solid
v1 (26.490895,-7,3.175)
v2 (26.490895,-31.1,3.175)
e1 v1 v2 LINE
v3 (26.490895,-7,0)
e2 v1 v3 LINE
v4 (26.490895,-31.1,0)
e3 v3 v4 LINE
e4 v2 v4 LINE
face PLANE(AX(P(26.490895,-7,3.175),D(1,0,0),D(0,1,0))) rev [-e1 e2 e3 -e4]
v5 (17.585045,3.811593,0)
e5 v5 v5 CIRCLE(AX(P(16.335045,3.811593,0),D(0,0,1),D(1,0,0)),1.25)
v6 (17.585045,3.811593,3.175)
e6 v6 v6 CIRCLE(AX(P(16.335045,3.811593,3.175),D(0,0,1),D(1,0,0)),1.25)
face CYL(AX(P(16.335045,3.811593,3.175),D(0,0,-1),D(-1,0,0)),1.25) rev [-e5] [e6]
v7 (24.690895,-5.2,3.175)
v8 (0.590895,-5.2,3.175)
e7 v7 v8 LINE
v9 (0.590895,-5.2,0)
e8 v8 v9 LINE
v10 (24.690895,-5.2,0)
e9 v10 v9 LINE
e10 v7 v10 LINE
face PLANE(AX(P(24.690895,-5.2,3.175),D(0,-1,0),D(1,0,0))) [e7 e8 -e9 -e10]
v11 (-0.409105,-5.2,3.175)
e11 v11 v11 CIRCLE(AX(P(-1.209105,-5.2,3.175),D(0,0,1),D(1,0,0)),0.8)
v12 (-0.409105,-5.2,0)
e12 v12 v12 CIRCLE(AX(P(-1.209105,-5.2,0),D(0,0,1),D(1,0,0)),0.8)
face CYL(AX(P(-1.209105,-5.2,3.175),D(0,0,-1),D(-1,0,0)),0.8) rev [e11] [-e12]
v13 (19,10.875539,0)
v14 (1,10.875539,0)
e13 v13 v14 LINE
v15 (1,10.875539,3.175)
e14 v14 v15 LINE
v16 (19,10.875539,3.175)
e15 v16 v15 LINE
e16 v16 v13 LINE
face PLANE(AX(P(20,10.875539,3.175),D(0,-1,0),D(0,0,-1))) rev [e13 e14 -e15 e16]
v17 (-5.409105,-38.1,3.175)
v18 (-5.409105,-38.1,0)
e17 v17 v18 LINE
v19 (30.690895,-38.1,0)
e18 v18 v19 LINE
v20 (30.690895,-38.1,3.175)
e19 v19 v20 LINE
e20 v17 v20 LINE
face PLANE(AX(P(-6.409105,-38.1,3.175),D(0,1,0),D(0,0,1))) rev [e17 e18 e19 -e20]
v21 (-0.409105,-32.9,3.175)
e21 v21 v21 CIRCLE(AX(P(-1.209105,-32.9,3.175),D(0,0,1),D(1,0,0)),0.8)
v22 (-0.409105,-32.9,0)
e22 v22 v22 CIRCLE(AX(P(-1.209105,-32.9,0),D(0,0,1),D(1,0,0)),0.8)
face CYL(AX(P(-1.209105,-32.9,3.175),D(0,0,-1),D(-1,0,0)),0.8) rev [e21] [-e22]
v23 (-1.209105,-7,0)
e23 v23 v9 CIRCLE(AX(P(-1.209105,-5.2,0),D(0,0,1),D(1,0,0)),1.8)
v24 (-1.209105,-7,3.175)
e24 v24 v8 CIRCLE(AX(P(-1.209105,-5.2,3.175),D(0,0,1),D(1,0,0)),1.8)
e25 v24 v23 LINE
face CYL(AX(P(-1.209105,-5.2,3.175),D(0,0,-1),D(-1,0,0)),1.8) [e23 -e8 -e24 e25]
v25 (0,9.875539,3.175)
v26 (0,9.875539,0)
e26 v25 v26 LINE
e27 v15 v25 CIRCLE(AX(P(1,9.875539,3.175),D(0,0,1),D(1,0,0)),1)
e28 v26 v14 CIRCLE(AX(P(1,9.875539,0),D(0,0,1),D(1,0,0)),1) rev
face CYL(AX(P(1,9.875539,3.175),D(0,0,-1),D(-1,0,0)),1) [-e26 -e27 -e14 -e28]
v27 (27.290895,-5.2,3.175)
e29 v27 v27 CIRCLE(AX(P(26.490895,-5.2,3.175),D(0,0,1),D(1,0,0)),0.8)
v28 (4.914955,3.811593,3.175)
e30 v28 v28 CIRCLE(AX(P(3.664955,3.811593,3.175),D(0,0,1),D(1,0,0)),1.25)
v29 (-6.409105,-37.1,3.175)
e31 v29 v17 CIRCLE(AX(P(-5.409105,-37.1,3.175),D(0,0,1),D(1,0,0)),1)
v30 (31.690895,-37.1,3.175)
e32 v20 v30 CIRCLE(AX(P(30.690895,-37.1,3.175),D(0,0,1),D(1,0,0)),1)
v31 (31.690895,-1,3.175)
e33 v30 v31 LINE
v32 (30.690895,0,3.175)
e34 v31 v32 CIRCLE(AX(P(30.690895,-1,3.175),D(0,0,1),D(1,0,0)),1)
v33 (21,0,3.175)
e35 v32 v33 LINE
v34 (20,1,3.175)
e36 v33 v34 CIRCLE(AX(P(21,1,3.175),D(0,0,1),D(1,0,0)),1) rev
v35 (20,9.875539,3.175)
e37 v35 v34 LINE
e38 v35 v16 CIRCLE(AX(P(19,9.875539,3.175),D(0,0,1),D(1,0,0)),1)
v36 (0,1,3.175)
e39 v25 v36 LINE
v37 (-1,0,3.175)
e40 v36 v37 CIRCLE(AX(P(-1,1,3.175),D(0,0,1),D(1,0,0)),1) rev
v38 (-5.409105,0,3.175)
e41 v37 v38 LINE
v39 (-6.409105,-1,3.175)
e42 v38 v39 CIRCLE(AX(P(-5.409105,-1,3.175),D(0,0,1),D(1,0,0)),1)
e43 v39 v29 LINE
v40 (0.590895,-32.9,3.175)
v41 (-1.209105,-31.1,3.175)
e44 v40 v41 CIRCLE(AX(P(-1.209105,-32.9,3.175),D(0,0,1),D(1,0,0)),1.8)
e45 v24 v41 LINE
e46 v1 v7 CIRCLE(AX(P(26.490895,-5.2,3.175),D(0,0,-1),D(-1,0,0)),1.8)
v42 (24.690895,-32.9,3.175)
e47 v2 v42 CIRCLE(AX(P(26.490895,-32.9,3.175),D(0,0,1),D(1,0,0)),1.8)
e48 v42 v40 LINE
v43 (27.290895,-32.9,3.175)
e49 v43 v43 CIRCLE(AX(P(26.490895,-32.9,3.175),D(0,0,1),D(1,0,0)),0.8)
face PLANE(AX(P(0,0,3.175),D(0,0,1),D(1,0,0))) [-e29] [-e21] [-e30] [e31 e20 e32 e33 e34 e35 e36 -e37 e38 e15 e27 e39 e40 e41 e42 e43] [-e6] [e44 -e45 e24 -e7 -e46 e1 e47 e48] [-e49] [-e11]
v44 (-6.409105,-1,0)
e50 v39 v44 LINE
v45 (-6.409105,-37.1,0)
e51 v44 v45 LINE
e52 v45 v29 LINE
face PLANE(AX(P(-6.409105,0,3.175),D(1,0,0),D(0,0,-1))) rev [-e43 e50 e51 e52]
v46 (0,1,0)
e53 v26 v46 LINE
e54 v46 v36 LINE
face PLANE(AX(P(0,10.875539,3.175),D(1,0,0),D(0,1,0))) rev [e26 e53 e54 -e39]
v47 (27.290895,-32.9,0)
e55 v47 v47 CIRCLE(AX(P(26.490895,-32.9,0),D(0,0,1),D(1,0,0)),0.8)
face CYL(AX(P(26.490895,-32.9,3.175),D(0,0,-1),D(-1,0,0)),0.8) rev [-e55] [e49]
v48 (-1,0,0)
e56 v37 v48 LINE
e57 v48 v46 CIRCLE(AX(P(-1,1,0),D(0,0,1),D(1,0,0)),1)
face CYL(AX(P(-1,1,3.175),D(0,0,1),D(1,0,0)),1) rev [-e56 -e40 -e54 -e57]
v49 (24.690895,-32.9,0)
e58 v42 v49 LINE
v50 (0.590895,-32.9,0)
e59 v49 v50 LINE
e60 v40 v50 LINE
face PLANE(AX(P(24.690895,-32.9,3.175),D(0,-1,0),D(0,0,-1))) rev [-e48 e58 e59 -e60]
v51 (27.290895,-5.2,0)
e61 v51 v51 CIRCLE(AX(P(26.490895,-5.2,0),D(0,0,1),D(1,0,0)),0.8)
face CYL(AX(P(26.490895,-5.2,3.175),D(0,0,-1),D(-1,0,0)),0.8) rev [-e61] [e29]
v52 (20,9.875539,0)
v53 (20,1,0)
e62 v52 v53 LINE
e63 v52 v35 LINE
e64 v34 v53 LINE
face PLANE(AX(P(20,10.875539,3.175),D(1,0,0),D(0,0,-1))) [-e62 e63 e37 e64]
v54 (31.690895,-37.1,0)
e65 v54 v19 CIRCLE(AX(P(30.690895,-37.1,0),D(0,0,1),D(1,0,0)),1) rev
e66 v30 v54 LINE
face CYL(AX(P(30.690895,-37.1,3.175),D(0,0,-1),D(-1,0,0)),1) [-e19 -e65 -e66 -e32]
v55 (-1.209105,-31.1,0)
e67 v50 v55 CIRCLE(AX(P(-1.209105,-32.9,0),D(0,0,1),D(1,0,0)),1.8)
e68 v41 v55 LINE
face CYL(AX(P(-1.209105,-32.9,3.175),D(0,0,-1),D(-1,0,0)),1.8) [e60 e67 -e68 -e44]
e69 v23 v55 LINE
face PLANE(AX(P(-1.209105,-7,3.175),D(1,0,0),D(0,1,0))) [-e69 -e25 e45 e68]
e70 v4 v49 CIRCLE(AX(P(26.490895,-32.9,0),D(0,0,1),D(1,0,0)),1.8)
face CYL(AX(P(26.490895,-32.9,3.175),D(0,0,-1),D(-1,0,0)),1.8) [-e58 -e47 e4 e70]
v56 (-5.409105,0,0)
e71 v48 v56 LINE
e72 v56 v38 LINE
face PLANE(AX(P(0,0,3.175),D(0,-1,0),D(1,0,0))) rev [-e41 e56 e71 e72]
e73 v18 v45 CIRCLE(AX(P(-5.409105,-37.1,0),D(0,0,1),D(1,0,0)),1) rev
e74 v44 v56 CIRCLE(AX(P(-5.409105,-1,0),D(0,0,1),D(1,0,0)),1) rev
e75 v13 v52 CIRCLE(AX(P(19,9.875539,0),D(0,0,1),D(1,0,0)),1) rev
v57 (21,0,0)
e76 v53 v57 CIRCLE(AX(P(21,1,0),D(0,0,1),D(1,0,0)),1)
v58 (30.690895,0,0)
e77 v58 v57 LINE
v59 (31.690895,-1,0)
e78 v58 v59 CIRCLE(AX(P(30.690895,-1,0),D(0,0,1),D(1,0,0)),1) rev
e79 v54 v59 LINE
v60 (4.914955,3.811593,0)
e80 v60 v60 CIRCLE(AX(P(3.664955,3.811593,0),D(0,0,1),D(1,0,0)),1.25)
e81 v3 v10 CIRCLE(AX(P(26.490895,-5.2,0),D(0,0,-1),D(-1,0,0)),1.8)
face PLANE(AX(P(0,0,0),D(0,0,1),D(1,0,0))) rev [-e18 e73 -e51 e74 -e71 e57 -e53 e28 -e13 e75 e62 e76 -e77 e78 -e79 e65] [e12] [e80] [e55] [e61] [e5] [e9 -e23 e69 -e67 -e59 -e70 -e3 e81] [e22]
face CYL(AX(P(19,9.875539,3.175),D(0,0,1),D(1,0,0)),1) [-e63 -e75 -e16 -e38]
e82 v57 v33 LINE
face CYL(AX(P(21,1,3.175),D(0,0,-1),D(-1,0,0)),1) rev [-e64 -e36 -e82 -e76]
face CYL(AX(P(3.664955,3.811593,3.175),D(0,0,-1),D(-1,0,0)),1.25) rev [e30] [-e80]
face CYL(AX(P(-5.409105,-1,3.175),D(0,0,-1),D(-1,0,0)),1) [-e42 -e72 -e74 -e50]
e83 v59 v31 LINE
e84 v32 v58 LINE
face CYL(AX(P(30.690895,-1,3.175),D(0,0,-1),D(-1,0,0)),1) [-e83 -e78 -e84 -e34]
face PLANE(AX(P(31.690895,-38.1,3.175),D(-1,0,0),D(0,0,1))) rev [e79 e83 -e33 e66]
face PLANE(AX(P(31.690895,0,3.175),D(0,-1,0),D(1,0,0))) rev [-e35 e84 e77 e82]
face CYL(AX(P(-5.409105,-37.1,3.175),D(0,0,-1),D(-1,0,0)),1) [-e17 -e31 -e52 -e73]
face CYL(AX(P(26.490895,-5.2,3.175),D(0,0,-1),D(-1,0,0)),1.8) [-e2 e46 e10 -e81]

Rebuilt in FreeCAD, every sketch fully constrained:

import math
import FreeCAD as App
import Part
import Sketcher

V = App.Vector
Q = App.Units.Quantity


def edges_at(feature, points):
    """Names of the edges that pass closest to the given points."""
    edges = feature.Shape.Edges
    near = lambda p: min(range(len(edges)), key=lambda i: edges[i].distToShape(Part.Vertex(*p))[0])
    return sorted({f"Edge{near(p) + 1}" for p in points})

doc = App.newDocument("Part")
body = doc.addObject("PartDesign::Body", "Body")

sketch1 = body.newObject("Sketcher::SketchObject", "Sketch")
sketch1.AttachmentSupport = (doc.getObject("XY_Plane"), [""])
sketch1.MapMode = "FlatFace"
sketch1.addGeometry(Part.LineSegment(V(31.690895, -38.1, 0), V(31.690895, 0, 0)), False)
sketch1.addGeometry(Part.LineSegment(V(31.690895, 0, 0), V(20, 0, 0)), False)
sketch1.addGeometry(Part.LineSegment(V(20, 0, 0), V(20, 10.875539, 0)), False)
sketch1.addGeometry(Part.LineSegment(V(20, 10.875539, 0), V(0, 10.875539, 0)), False)
sketch1.addGeometry(Part.LineSegment(V(0, 10.875539, 0), V(0, 0, 0)), False)
sketch1.addGeometry(Part.LineSegment(V(0, 0, 0), V(-6.409105, 0, 0)), False)
sketch1.addGeometry(Part.LineSegment(V(-6.409105, 0, 0), V(-6.409105, -38.1, 0)), False)
sketch1.addGeometry(Part.LineSegment(V(-6.409105, -38.1, 0), V(31.690895, -38.1, 0)), False)
sketch1.addGeometry(Part.Circle(V(-1.209105, -32.9, 0), V(0, 0, 1), 0.8), False)
sketch1.addGeometry(Part.ArcOfCircle(Part.Circle(V(26.490895, -5.2, 0), V(0, 0, 1), 1.8), math.radians(180), math.radians(270)), False)
sketch1.addGeometry(Part.LineSegment(V(26.490895, -7, 0), V(26.490895, -31.1, 0)), False)
sketch1.addGeometry(Part.ArcOfCircle(Part.Circle(V(26.490895, -32.9, 0), V(0, 0, 1), 1.8), math.radians(90), math.radians(180)), False)
sketch1.addGeometry(Part.LineSegment(V(24.690895, -32.9, 0), V(0.590895, -32.9, 0)), False)
sketch1.addGeometry(Part.ArcOfCircle(Part.Circle(V(-1.209105, -32.9, 0), V(0, 0, 1), 1.8), math.radians(0), math.radians(90)), False)
sketch1.addGeometry(Part.LineSegment(V(-1.209105, -31.1, 0), V(-1.209105, -7, 0)), False)
sketch1.addGeometry(Part.ArcOfCircle(Part.Circle(V(-1.209105, -5.2, 0), V(0, 0, 1), 1.8), math.radians(-90), math.radians(0)), False)
sketch1.addGeometry(Part.LineSegment(V(0.590895, -5.2, 0), V(24.690895, -5.2, 0)), False)
sketch1.addGeometry(Part.Circle(V(26.490895, -32.9, 0), V(0, 0, 1), 0.8), False)
sketch1.addGeometry(Part.Circle(V(-1.209105, -5.2, 0), V(0, 0, 1), 0.8), False)
sketch1.addGeometry(Part.Circle(V(3.664955, 3.811593, 0), V(0, 0, 1), 1.25), False)
sketch1.addGeometry(Part.Circle(V(26.490895, -5.2, 0), V(0, 0, 1), 0.8), False)
sketch1.addGeometry(Part.Circle(V(16.335045, 3.811593, 0), V(0, 0, 1), 1.25), False)
sketch1.addConstraint(Sketcher.Constraint("Coincident", 0, 2, 1, 1))
sketch1.addConstraint(Sketcher.Constraint("Coincident", 1, 2, 2, 1))
sketch1.addConstraint(Sketcher.Constraint("Coincident", 2, 2, 3, 1))
sketch1.addConstraint(Sketcher.Constraint("Coincident", 3, 2, 4, 1))
sketch1.addConstraint(Sketcher.Constraint("Coincident", 4, 2, 5, 1))
sketch1.addConstraint(Sketcher.Constraint("Coincident", 5, 2, 6, 1))
sketch1.addConstraint(Sketcher.Constraint("Coincident", 6, 2, 7, 1))
sketch1.addConstraint(Sketcher.Constraint("Coincident", 7, 2, 0, 1))
sketch1.addConstraint(Sketcher.Constraint("Coincident", 9, 2, 10, 1))
sketch1.addConstraint(Sketcher.Constraint("Coincident", 10, 2, 11, 1))
sketch1.addConstraint(Sketcher.Constraint("Coincident", 11, 2, 12, 1))
sketch1.addConstraint(Sketcher.Constraint("Coincident", 12, 2, 13, 1))
sketch1.addConstraint(Sketcher.Constraint("Coincident", 13, 2, 14, 1))
sketch1.addConstraint(Sketcher.Constraint("Coincident", 14, 2, 15, 1))
sketch1.addConstraint(Sketcher.Constraint("Coincident", 15, 2, 16, 1))
sketch1.addConstraint(Sketcher.Constraint("Coincident", 16, 2, 9, 1))
sketch1.addConstraint(Sketcher.Constraint("Vertical", 0))
sketch1.addConstraint(Sketcher.Constraint("Horizontal", 1))
sketch1.addConstraint(Sketcher.Constraint("Vertical", 2))
sketch1.addConstraint(Sketcher.Constraint("Horizontal", 3))
sketch1.addConstraint(Sketcher.Constraint("Vertical", 4))
sketch1.addConstraint(Sketcher.Constraint("Horizontal", 5))
sketch1.addConstraint(Sketcher.Constraint("Vertical", 6))
sketch1.addConstraint(Sketcher.Constraint("Horizontal", 7))
sketch1.addConstraint(Sketcher.Constraint("Vertical", 10))
sketch1.addConstraint(Sketcher.Constraint("Horizontal", 12))
sketch1.addConstraint(Sketcher.Constraint("Vertical", 14))
sketch1.addConstraint(Sketcher.Constraint("Horizontal", 16))
sketch1.addConstraint(Sketcher.Constraint("Coincident", 4, 2, -1, 1))
sketch1.addConstraint(Sketcher.Constraint("Coincident", 13, 3, 8, 3))
sketch1.addConstraint(Sketcher.Constraint("Coincident", 17, 3, 11, 3))
sketch1.addConstraint(Sketcher.Constraint("Coincident", 18, 3, 15, 3))
sketch1.addConstraint(Sketcher.Constraint("Coincident", 20, 3, 9, 3))
sketch1.addConstraint(Sketcher.Constraint("Equal", 9, 11))
sketch1.addConstraint(Sketcher.Constraint("Equal", 11, 13))
sketch1.addConstraint(Sketcher.Constraint("Equal", 13, 15))
sketch1.addConstraint(Sketcher.Constraint("Equal", 8, 17))
sketch1.addConstraint(Sketcher.Constraint("Equal", 17, 18))
sketch1.addConstraint(Sketcher.Constraint("Equal", 18, 20))
sketch1.addConstraint(Sketcher.Constraint("Equal", 19, 21))
sketch1.addConstraint(Sketcher.Constraint("PointOnObject", 0, 2, -1))
sketch1.addConstraint(Sketcher.Constraint("Horizontal", 8, 3, 11, 3))
sketch1.addConstraint(Sketcher.Constraint("Horizontal", 9, 3, 15, 3))
sketch1.addConstraint(Sketcher.Constraint("Horizontal", 19, 3, 21, 3))
sketch1.addConstraint(Sketcher.Constraint("Horizontal", 17, 3, 11, 2))
sketch1.addConstraint(Sketcher.Constraint("Horizontal", 20, 3, 15, 2))
sketch1.addConstraint(Sketcher.Constraint("Vertical", 9, 3, 11, 3))
sketch1.addConstraint(Sketcher.Constraint("Vertical", 13, 3, 15, 3))
sketch1.addConstraint(Sketcher.Constraint("Vertical", 20, 3, 9, 2))
sketch1.addConstraint(Sketcher.Constraint("Vertical", 18, 3, 13, 2))
sketch1.addConstraint(Sketcher.Constraint("Equal", 7, 0))
sketch1.addConstraint(Sketcher.Constraint("Equal", 16, 10))
sketch1.addConstraint(Sketcher.Constraint("Diameter", 8, Q("1.6 mm")))
sketch1.addConstraint(Sketcher.Constraint("Diameter", 19, Q("2.5 mm")))
sketch1.addConstraint(Sketcher.Constraint("Radius", 9, Q("1.8 mm")))
sketch1.addConstraint(Sketcher.Constraint("DistanceX", 3, 2, 3, 1, Q("20 mm")))
sketch1.addConstraint(Sketcher.Constraint("DistanceX", 7, 1, 7, 2, Q("38.1 mm")))
sketch1.addConstraint(Sketcher.Constraint("DistanceX", 12, 2, 12, 1, Q("24.1 mm")))
sketch1.addConstraint(Sketcher.Constraint("DistanceY", 9, 2, -1, 1, Q("7 mm")))
sketch1.addConstraint(Sketcher.Constraint("DistanceX", 11, 2, 7, 2, Q("7 mm")))
sketch1.addConstraint(Sketcher.Constraint("DistanceY", 2, 1, 2, 2, Q("10.875539 mm")))
sketch1.addConstraint(Sketcher.Constraint("DistanceX", 1, 2, 1, 1, Q("11.690895 mm")))
sketch1.addConstraint(Sketcher.Constraint("DistanceX", 15, 3, 19, 3, Q("4.874061 mm")))
sketch1.addConstraint(Sketcher.Constraint("DistanceX", 19, 3, 21, 3, Q("12.67009 mm")))
sketch1.addConstraint(Sketcher.Constraint("DistanceY", -1, 1, 19, 3, Q("3.811593 mm")))
pad1 = body.newObject("PartDesign::Pad", "Pad")
pad1.Profile = sketch1
pad1.Length = 3.175
doc.recompute()

fillet = body.newObject("PartDesign::Fillet", "Fillet")
fillet.Base = (pad1, edges_at(pad1, [
    (20, 10.876, 1.587),
    (20, 0, 1.587),
    (31.691, 0, 1.587),
    (31.691, -38.1, 1.587),
    (-6.409, -38.1, 1.587),
    (-6.409, 0, 1.587),
    (0, 0, 1.587),
    (0, 10.876, 1.587),
]))
fillet.Radius = 1

doc.recompute()
